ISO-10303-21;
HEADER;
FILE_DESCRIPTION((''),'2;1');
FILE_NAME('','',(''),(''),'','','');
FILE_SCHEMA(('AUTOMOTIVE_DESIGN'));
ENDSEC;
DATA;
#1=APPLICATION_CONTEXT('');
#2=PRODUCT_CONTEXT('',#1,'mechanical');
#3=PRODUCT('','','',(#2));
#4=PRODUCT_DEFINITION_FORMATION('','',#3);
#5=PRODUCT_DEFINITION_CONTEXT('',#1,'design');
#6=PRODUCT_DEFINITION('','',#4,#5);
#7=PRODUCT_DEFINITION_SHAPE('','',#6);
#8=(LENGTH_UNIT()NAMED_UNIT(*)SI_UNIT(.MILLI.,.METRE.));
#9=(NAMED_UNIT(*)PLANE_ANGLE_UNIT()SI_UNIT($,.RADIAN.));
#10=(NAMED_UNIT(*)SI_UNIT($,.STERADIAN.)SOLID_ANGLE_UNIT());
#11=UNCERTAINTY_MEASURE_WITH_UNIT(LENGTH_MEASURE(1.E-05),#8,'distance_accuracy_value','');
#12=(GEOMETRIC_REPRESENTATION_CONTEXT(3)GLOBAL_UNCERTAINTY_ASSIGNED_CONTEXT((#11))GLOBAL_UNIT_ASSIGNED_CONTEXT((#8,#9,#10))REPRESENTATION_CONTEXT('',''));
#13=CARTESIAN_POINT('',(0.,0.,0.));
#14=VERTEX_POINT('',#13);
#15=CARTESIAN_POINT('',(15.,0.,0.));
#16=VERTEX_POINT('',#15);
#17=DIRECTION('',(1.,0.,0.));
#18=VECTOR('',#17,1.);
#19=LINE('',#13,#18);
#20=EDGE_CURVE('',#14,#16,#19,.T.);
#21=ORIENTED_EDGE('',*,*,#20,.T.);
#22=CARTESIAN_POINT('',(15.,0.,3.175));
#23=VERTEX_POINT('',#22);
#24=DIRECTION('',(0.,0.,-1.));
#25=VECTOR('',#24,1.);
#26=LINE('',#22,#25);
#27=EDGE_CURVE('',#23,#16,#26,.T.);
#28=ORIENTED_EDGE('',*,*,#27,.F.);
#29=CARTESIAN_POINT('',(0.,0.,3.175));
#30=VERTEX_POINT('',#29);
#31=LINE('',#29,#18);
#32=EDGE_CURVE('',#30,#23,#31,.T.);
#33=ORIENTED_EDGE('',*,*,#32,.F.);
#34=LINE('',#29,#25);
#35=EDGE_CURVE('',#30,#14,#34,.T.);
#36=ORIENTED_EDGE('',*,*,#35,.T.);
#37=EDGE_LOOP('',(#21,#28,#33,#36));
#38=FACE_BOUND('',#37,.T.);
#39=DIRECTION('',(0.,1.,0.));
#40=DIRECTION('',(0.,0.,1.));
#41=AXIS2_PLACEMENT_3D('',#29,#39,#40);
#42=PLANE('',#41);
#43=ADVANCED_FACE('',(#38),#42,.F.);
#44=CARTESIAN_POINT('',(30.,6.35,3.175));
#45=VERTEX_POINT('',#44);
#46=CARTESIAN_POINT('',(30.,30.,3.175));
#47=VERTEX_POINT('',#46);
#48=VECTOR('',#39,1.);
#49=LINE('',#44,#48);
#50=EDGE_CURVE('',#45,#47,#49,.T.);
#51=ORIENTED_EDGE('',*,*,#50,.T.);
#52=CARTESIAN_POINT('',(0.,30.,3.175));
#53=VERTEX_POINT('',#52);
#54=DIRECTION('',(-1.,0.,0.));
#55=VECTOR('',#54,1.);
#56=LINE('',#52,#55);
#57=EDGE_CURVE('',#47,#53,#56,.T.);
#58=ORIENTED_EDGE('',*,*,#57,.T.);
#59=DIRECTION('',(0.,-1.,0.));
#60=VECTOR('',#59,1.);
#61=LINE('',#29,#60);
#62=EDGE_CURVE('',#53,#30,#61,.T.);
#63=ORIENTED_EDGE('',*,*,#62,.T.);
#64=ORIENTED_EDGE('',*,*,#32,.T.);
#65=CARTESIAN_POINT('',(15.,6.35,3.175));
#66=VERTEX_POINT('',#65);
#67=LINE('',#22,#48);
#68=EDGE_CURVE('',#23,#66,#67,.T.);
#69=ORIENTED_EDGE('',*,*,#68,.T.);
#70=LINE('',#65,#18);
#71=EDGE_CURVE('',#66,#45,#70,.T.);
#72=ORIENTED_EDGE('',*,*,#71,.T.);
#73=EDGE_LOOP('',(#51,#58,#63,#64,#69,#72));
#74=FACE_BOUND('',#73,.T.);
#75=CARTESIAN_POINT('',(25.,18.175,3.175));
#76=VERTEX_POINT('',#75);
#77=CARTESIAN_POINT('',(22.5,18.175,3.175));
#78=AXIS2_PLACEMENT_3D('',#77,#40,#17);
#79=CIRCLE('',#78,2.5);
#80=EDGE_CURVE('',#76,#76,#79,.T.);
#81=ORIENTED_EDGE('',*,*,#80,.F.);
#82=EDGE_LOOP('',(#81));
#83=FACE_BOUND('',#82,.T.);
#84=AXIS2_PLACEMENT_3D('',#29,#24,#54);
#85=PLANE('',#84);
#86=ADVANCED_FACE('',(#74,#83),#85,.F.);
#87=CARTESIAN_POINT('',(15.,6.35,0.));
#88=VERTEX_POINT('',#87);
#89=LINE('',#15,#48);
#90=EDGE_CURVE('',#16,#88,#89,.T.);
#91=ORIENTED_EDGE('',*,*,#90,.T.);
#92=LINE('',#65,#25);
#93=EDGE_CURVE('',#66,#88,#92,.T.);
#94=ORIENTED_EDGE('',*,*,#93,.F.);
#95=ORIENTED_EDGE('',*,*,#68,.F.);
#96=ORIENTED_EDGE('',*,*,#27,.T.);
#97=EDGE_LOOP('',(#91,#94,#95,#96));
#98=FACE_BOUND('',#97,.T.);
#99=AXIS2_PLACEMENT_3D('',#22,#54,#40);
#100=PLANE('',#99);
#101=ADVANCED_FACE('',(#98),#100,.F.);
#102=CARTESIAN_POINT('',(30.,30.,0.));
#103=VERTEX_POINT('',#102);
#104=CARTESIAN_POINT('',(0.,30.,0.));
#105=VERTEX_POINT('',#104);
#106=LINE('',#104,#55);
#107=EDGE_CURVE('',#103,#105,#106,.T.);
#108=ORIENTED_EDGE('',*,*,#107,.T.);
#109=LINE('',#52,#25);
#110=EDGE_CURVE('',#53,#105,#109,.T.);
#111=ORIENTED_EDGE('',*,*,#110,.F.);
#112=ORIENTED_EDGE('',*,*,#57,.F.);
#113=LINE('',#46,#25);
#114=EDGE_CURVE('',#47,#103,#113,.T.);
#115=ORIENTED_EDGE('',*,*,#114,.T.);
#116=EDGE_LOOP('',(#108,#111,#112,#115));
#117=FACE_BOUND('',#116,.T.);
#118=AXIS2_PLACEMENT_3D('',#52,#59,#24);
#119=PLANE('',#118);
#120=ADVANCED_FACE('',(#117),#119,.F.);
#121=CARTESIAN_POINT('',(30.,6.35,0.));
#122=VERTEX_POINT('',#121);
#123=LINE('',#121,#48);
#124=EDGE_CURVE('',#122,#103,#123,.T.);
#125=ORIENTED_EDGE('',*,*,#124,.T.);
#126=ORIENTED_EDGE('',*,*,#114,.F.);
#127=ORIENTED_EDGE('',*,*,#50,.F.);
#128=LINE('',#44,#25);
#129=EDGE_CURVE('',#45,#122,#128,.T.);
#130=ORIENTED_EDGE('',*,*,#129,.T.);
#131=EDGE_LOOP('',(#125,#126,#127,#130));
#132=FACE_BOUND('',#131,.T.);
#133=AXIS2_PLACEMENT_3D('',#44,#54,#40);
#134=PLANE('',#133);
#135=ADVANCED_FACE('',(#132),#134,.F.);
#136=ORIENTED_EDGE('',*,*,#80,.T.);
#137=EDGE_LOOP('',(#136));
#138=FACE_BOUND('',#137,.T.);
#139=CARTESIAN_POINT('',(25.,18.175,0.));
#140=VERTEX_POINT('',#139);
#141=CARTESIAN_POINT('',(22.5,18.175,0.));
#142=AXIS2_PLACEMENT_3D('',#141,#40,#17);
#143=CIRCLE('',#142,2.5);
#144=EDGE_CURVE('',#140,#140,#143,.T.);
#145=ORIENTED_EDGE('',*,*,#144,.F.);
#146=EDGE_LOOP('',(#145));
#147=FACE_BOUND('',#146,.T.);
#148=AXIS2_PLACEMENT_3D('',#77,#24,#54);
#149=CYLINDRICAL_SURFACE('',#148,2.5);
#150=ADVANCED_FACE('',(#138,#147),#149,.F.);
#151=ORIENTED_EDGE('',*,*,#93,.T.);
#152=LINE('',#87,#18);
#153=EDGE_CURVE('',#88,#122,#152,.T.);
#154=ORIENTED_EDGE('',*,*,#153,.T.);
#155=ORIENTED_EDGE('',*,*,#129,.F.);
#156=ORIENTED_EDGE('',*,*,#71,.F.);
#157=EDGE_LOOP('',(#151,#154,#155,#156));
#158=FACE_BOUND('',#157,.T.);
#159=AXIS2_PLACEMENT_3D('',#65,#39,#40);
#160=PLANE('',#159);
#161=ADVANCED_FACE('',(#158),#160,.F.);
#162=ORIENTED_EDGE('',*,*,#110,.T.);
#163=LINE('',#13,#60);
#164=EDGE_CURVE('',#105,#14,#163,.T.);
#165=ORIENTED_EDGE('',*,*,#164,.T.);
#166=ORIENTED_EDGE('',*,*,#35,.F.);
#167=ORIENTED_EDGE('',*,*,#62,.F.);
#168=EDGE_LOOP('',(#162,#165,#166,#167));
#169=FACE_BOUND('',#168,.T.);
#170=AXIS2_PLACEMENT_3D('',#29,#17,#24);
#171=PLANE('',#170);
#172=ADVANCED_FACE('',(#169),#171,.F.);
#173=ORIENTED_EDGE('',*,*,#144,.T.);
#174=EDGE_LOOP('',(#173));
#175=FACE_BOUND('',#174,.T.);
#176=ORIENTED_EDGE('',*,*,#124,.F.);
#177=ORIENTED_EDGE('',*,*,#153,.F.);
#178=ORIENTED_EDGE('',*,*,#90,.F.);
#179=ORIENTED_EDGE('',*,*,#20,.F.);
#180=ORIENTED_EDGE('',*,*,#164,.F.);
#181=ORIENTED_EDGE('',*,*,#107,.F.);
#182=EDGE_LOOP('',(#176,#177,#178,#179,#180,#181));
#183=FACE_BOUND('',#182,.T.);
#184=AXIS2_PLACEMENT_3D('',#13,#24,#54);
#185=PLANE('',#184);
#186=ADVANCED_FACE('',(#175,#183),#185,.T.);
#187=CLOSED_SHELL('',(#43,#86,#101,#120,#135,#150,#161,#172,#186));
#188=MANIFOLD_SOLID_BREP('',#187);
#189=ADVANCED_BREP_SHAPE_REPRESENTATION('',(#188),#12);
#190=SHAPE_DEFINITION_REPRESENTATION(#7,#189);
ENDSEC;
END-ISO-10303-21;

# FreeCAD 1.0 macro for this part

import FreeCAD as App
import Part
import Sketcher
Q = App.Units.Quantity


def add_polygon(sketch, points):
    """Adds a closed chain of lines whose ends are joined by coincident constraints."""
    first, n = sketch.GeometryCount, len(points)
    for a, b in zip(points, points[1:] + points[:1]):
        sketch.addGeometry(Part.LineSegment(App.Vector(*a, 0), App.Vector(*b, 0)), False)
    for i in range(n):
        sketch.addConstraint(Sketcher.Constraint("Coincident", first + i, 2, first + (i + 1) % n, 1))

doc = App.newDocument("Part")
body = doc.addObject("PartDesign::Body", "Body")

# Sketch on XY plane
sketch1 = body.newObject("Sketcher::SketchObject", "Sketch")
sketch1.AttachmentSupport = (doc.getObject("XY_Plane"), [""])
sketch1.MapMode = "FlatFace"
add_polygon(sketch1, [(15, 0), (15, 6.3), (30, 6.3), (30, 30), (0, 30), (0, 0)])  # lines 0-5
sketch1.addGeometry(Part.Circle(App.Vector(22.5, 18.2, 0), App.Vector(0, 0, 1), 2.5), False)  # 6
sketch1.addConstraint([
    Sketcher.Constraint("Vertical", 0),
    Sketcher.Constraint("Horizontal", 1),
    Sketcher.Constraint("Vertical", 2),
    Sketcher.Constraint("Horizontal", 3),
    Sketcher.Constraint("Vertical", 4),
    Sketcher.Constraint("Horizontal", 5),
    Sketcher.Constraint("Coincident", 4, 2, -1, 1),
    Sketcher.Constraint("Equal", 1, 5),
    Sketcher.Constraint("Equal", 3, 4),
    Sketcher.Constraint("Diameter", 6, Q("5 mm")),
    Sketcher.Constraint("DistanceX", 1, 1, 1, 2, Q("15 mm")),
    Sketcher.Constraint("DistanceY", 0, 1, 0, 2, Q("6.35 mm")),
    Sketcher.Constraint("DistanceX", -1, 1, 6, 3, Q("22.5 mm")),
    Sketcher.Constraint("DistanceY", -1, 1, 6, 3, Q("18.175 mm")),
])
pad1 = body.newObject("PartDesign::Pad", "Pad")
pad1.Profile = sketch1
pad1.Length = 3.175

doc.recompute()
